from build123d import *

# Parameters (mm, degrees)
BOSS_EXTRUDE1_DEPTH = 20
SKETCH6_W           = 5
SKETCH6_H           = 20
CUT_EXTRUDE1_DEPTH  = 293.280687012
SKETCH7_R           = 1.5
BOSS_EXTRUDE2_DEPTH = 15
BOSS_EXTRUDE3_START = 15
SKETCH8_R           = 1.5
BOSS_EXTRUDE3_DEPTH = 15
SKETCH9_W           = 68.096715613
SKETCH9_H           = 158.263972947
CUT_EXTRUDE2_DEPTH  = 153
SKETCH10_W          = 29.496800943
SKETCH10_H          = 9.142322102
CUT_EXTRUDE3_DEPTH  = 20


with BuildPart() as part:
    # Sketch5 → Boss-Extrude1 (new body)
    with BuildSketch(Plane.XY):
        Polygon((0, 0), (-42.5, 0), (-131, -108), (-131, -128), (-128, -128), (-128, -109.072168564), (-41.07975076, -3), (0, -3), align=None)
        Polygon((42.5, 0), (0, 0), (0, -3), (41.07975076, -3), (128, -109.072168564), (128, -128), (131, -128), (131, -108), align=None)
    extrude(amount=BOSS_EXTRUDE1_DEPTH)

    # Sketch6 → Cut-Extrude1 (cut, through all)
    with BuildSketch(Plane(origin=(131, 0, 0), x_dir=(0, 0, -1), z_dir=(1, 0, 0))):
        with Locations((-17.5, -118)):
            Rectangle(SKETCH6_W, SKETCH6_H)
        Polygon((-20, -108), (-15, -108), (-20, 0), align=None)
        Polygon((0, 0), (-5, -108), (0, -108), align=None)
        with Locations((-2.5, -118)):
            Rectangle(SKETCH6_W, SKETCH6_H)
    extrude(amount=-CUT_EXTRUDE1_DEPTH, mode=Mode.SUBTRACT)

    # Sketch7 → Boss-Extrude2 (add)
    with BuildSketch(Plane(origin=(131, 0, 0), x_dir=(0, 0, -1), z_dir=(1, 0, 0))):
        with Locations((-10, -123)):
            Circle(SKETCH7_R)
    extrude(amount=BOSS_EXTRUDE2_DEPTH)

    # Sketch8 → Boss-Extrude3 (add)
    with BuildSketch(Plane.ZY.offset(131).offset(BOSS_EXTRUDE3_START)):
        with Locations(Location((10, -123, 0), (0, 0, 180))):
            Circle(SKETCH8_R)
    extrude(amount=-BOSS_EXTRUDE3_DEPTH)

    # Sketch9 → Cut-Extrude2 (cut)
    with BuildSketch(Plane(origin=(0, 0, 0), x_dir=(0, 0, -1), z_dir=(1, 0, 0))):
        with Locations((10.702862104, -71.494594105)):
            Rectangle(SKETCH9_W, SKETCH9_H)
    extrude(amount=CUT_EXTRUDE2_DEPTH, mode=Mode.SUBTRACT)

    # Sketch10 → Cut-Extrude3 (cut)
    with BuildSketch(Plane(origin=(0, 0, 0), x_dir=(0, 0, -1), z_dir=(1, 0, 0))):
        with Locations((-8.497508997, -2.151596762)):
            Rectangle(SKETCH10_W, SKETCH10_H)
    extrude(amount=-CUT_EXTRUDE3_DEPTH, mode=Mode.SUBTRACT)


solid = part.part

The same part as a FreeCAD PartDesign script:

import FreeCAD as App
import Part
import Sketcher


def add_polygon(sketch, points):
    """Adds a closed chain of lines whose ends are joined by coincident constraints."""
    first, n = sketch.GeometryCount, len(points)
    for a, b in zip(points, points[1:] + points[:1]):
        sketch.addGeometry(Part.LineSegment(App.Vector(*a, 0), App.Vector(*b, 0)), False)
    for i in range(n):
        sketch.addConstraint(Sketcher.Constraint("Coincident", first + i, 2, first + (i + 1) % n, 1))

doc = App.newDocument("Part")
body = doc.addObject("PartDesign::Body", "Body")

# Sketch on XY plane
sketch1 = body.newObject("Sketcher::SketchObject", "Sketch")
sketch1.AttachmentSupport = (doc.getObject("XY_Plane"), [""])
sketch1.MapMode = "FlatFace"
add_polygon(sketch1, [(-42.5, 0), (-131, -108), (-131, -128), (-128, -128), (-128, -109.1), (-41.1, -3), (41.1, -3), (128, -109.1), (128, -128), (131, -128), (131, -108), (42.5, 0)])  # lines 0-11
sketch1.addConstraint([
    Sketcher.Constraint("Vertical", 1),
    Sketcher.Constraint("Horizontal", 2),
    Sketcher.Constraint("Vertical", 3),
    Sketcher.Constraint("Horizontal", 5),
    Sketcher.Constraint("Vertical", 7),
    Sketcher.Constraint("Horizontal", 8),
    Sketcher.Constraint("Vertical", 9),
    Sketcher.Constraint("Horizontal", 11),
    Sketcher.Constraint("Symmetric", 10, 2, 11, 2, -1, 1),
    Sketcher.Constraint("Symmetric", 3, 2, 6, 2, -2),
    Sketcher.Constraint("Symmetric", 1, 2, 8, 2, -2),
    Sketcher.Constraint("Parallel", 0, 4),
    Sketcher.Constraint("Parallel", 6, 10),
    Sketcher.Constraint("Horizontal", 0, 2, 9, 2),
    Sketcher.Constraint("DistanceX", 2, 1, 2, 2, 3.0),
    Sketcher.Constraint("DistanceX", 11, 2, 11, 1, 85.0),
    Sketcher.Constraint("DistanceY", 1, 2, 1, 1, 20.0),
    Sketcher.Constraint("DistanceX", 0, 2, -1, 1, 131.0),
    Sketcher.Constraint("DistanceY", 0, 2, -1, 1, 108.0),
    Sketcher.Constraint("DistanceY", 4, 2, -1, 1, 3.0),
    Sketcher.Constraint("DistanceX", 5, 1, 5, 2, 82.159502),
])
pad1 = body.newObject("PartDesign::Pad", "Pad")
pad1.Profile = sketch1
pad1.Length = 20

# Sketch on YZ plane
sketch2 = body.newObject("Sketcher::SketchObject", "Sketch001")
sketch2.AttachmentSupport = (doc.getObject("YZ_Plane"), [""])
sketch2.MapMode = "FlatFace"
sketch2.AttachmentOffset = App.Placement(App.Vector(0, 0, 131), App.Rotation())
add_polygon(sketch2, [(-128, 20), (-128, 15), (-108, 15), (0, 20)])  # lines 0-3
add_polygon(sketch2, [(0, 0), (-108, 5), (-128, 5), (-128, 0)])  # lines 4-7
sketch2.addConstraint([
    Sketcher.Constraint("Vertical", 0),
    Sketcher.Constraint("Horizontal", 1),
    Sketcher.Constraint("Horizontal", 3),
    Sketcher.Constraint("Horizontal", 5),
    Sketcher.Constraint("Vertical", 6),
    Sketcher.Constraint("Horizontal", 7),
    Sketcher.Constraint("Coincident", 7, 2, -1, 1),
    Sketcher.Constraint("PointOnObject", 2, 2, -2),
    Sketcher.Constraint("Vertical", 1, 2, 4, 2),
    Sketcher.Constraint("Vertical", 3, 2, 5, 2),
    Sketcher.Constraint("Equal", 0, 6),
    Sketcher.Constraint("DistanceX", 1, 1, 1, 2, 20.0),
    Sketcher.Constraint("DistanceX", 3, 2, 3, 1, 128.0),
    Sketcher.Constraint("DistanceY", 0, 2, 0, 1, 5.0),
    Sketcher.Constraint("DistanceY", -1, 1, 0, 2, 15.0),
])
pocket1 = body.newObject("PartDesign::Pocket", "Pocket")
pocket1.Profile = sketch2
pocket1.Type = "ThroughAll"

# Sketch on YZ plane
sketch3 = body.newObject("Sketcher::SketchObject", "Sketch002")
sketch3.AttachmentSupport = (doc.getObject("YZ_Plane"), [""])
sketch3.MapMode = "FlatFace"
sketch3.AttachmentOffset = App.Placement(App.Vector(0, 0, 131), App.Rotation())
sketch3.addGeometry(Part.Circle(App.Vector(-123, 10, 0), App.Vector(0, 0, 1), 1.5), False)
sketch3.addConstraint([
    Sketcher.Constraint("Diameter", 0, 3.0),
    Sketcher.Constraint("DistanceX", 0, 3, -1, 1, 123.0),
    Sketcher.Constraint("DistanceY", -1, 1, 0, 3, 10.0),
])
pad2 = body.newObject("PartDesign::Pad", "Pad001")
pad2.Profile = sketch3
pad2.Length = 15

# Sketch on YZ plane
sketch4 = body.newObject("Sketcher::SketchObject", "Sketch003")
sketch4.AttachmentSupport = (doc.getObject("YZ_Plane"), [""])
sketch4.MapMode = "FlatFace"
sketch4.AttachmentOffset = App.Placement(App.Vector(0, 0, -146), App.Rotation())
sketch4.addGeometry(Part.Circle(App.Vector(-123, 10, 0), App.Vector(0, 0, 1), 1.5), False)
sketch4.addConstraint([
    Sketcher.Constraint("Diameter", 0, 3.0),
    Sketcher.Constraint("DistanceX", 0, 3, -1, 1, 123.0),
    Sketcher.Constraint("DistanceY", -1, 1, 0, 3, 10.0),
])
pad3 = body.newObject("PartDesign::Pad", "Pad002")
pad3.Profile = sketch4
pad3.Length = 15

# Sketch on YZ plane
sketch5 = body.newObject("Sketcher::SketchObject", "Sketch004")
sketch5.AttachmentSupport = (doc.getObject("YZ_Plane"), [""])
sketch5.MapMode = "FlatFace"
add_polygon(sketch5, [(8, 23), (-151, 23), (-151, -45), (8, -45)])  # lines 0-3
sketch5.addConstraint([
    Sketcher.Constraint("Horizontal", 0),
    Sketcher.Constraint("Vertical", 1),
    Sketcher.Constraint("Horizontal", 2),
    Sketcher.Constraint("Vertical", 3),
    Sketcher.Constraint("DistanceX", 0, 2, 0, 1, 158.263973),
    Sketcher.Constraint("DistanceY", 1, 2, 1, 1, 68.096716),
    Sketcher.Constraint("DistanceX", 0, 2, -1, 1, 150.626581),
    Sketcher.Constraint("DistanceY", 1, 2, -1, 1, 44.75122),
])
pocket2 = body.newObject("PartDesign::Pocket", "Pocket001")
pocket2.Profile = sketch5
pocket2.Length = 153
pocket2.Reversed = True

# Sketch on YZ plane
sketch6 = body.newObject("Sketcher::SketchObject", "Sketch005")
sketch6.AttachmentSupport = (doc.getObject("YZ_Plane"), [""])
sketch6.MapMode = "FlatFace"
add_polygon(sketch6, [(2, 23), (-7, 23), (-7, -6), (2, -6)])  # lines 0-3
sketch6.addConstraint([
    Sketcher.Constraint("Horizontal", 0),
    Sketcher.Constraint("Vertical", 1),
    Sketcher.Constraint("Horizontal", 2),
    Sketcher.Constraint("Vertical", 3),
    Sketcher.Constraint("DistanceY", 1, 2, 1, 1, 29.496801),
    Sketcher.Constraint("DistanceX", 0, 2, 0, 1, 9.142322),
    Sketcher.Constraint("DistanceY", -1, 1, 0, 2, 23.245909),
    Sketcher.Constraint("DistanceX", 0, 2, -1, 1, 6.722758),
])
pocket3 = body.newObject("PartDesign::Pocket", "Pocket002")
pocket3.Profile = sketch6
pocket3.Length = 20

doc.recompute()
